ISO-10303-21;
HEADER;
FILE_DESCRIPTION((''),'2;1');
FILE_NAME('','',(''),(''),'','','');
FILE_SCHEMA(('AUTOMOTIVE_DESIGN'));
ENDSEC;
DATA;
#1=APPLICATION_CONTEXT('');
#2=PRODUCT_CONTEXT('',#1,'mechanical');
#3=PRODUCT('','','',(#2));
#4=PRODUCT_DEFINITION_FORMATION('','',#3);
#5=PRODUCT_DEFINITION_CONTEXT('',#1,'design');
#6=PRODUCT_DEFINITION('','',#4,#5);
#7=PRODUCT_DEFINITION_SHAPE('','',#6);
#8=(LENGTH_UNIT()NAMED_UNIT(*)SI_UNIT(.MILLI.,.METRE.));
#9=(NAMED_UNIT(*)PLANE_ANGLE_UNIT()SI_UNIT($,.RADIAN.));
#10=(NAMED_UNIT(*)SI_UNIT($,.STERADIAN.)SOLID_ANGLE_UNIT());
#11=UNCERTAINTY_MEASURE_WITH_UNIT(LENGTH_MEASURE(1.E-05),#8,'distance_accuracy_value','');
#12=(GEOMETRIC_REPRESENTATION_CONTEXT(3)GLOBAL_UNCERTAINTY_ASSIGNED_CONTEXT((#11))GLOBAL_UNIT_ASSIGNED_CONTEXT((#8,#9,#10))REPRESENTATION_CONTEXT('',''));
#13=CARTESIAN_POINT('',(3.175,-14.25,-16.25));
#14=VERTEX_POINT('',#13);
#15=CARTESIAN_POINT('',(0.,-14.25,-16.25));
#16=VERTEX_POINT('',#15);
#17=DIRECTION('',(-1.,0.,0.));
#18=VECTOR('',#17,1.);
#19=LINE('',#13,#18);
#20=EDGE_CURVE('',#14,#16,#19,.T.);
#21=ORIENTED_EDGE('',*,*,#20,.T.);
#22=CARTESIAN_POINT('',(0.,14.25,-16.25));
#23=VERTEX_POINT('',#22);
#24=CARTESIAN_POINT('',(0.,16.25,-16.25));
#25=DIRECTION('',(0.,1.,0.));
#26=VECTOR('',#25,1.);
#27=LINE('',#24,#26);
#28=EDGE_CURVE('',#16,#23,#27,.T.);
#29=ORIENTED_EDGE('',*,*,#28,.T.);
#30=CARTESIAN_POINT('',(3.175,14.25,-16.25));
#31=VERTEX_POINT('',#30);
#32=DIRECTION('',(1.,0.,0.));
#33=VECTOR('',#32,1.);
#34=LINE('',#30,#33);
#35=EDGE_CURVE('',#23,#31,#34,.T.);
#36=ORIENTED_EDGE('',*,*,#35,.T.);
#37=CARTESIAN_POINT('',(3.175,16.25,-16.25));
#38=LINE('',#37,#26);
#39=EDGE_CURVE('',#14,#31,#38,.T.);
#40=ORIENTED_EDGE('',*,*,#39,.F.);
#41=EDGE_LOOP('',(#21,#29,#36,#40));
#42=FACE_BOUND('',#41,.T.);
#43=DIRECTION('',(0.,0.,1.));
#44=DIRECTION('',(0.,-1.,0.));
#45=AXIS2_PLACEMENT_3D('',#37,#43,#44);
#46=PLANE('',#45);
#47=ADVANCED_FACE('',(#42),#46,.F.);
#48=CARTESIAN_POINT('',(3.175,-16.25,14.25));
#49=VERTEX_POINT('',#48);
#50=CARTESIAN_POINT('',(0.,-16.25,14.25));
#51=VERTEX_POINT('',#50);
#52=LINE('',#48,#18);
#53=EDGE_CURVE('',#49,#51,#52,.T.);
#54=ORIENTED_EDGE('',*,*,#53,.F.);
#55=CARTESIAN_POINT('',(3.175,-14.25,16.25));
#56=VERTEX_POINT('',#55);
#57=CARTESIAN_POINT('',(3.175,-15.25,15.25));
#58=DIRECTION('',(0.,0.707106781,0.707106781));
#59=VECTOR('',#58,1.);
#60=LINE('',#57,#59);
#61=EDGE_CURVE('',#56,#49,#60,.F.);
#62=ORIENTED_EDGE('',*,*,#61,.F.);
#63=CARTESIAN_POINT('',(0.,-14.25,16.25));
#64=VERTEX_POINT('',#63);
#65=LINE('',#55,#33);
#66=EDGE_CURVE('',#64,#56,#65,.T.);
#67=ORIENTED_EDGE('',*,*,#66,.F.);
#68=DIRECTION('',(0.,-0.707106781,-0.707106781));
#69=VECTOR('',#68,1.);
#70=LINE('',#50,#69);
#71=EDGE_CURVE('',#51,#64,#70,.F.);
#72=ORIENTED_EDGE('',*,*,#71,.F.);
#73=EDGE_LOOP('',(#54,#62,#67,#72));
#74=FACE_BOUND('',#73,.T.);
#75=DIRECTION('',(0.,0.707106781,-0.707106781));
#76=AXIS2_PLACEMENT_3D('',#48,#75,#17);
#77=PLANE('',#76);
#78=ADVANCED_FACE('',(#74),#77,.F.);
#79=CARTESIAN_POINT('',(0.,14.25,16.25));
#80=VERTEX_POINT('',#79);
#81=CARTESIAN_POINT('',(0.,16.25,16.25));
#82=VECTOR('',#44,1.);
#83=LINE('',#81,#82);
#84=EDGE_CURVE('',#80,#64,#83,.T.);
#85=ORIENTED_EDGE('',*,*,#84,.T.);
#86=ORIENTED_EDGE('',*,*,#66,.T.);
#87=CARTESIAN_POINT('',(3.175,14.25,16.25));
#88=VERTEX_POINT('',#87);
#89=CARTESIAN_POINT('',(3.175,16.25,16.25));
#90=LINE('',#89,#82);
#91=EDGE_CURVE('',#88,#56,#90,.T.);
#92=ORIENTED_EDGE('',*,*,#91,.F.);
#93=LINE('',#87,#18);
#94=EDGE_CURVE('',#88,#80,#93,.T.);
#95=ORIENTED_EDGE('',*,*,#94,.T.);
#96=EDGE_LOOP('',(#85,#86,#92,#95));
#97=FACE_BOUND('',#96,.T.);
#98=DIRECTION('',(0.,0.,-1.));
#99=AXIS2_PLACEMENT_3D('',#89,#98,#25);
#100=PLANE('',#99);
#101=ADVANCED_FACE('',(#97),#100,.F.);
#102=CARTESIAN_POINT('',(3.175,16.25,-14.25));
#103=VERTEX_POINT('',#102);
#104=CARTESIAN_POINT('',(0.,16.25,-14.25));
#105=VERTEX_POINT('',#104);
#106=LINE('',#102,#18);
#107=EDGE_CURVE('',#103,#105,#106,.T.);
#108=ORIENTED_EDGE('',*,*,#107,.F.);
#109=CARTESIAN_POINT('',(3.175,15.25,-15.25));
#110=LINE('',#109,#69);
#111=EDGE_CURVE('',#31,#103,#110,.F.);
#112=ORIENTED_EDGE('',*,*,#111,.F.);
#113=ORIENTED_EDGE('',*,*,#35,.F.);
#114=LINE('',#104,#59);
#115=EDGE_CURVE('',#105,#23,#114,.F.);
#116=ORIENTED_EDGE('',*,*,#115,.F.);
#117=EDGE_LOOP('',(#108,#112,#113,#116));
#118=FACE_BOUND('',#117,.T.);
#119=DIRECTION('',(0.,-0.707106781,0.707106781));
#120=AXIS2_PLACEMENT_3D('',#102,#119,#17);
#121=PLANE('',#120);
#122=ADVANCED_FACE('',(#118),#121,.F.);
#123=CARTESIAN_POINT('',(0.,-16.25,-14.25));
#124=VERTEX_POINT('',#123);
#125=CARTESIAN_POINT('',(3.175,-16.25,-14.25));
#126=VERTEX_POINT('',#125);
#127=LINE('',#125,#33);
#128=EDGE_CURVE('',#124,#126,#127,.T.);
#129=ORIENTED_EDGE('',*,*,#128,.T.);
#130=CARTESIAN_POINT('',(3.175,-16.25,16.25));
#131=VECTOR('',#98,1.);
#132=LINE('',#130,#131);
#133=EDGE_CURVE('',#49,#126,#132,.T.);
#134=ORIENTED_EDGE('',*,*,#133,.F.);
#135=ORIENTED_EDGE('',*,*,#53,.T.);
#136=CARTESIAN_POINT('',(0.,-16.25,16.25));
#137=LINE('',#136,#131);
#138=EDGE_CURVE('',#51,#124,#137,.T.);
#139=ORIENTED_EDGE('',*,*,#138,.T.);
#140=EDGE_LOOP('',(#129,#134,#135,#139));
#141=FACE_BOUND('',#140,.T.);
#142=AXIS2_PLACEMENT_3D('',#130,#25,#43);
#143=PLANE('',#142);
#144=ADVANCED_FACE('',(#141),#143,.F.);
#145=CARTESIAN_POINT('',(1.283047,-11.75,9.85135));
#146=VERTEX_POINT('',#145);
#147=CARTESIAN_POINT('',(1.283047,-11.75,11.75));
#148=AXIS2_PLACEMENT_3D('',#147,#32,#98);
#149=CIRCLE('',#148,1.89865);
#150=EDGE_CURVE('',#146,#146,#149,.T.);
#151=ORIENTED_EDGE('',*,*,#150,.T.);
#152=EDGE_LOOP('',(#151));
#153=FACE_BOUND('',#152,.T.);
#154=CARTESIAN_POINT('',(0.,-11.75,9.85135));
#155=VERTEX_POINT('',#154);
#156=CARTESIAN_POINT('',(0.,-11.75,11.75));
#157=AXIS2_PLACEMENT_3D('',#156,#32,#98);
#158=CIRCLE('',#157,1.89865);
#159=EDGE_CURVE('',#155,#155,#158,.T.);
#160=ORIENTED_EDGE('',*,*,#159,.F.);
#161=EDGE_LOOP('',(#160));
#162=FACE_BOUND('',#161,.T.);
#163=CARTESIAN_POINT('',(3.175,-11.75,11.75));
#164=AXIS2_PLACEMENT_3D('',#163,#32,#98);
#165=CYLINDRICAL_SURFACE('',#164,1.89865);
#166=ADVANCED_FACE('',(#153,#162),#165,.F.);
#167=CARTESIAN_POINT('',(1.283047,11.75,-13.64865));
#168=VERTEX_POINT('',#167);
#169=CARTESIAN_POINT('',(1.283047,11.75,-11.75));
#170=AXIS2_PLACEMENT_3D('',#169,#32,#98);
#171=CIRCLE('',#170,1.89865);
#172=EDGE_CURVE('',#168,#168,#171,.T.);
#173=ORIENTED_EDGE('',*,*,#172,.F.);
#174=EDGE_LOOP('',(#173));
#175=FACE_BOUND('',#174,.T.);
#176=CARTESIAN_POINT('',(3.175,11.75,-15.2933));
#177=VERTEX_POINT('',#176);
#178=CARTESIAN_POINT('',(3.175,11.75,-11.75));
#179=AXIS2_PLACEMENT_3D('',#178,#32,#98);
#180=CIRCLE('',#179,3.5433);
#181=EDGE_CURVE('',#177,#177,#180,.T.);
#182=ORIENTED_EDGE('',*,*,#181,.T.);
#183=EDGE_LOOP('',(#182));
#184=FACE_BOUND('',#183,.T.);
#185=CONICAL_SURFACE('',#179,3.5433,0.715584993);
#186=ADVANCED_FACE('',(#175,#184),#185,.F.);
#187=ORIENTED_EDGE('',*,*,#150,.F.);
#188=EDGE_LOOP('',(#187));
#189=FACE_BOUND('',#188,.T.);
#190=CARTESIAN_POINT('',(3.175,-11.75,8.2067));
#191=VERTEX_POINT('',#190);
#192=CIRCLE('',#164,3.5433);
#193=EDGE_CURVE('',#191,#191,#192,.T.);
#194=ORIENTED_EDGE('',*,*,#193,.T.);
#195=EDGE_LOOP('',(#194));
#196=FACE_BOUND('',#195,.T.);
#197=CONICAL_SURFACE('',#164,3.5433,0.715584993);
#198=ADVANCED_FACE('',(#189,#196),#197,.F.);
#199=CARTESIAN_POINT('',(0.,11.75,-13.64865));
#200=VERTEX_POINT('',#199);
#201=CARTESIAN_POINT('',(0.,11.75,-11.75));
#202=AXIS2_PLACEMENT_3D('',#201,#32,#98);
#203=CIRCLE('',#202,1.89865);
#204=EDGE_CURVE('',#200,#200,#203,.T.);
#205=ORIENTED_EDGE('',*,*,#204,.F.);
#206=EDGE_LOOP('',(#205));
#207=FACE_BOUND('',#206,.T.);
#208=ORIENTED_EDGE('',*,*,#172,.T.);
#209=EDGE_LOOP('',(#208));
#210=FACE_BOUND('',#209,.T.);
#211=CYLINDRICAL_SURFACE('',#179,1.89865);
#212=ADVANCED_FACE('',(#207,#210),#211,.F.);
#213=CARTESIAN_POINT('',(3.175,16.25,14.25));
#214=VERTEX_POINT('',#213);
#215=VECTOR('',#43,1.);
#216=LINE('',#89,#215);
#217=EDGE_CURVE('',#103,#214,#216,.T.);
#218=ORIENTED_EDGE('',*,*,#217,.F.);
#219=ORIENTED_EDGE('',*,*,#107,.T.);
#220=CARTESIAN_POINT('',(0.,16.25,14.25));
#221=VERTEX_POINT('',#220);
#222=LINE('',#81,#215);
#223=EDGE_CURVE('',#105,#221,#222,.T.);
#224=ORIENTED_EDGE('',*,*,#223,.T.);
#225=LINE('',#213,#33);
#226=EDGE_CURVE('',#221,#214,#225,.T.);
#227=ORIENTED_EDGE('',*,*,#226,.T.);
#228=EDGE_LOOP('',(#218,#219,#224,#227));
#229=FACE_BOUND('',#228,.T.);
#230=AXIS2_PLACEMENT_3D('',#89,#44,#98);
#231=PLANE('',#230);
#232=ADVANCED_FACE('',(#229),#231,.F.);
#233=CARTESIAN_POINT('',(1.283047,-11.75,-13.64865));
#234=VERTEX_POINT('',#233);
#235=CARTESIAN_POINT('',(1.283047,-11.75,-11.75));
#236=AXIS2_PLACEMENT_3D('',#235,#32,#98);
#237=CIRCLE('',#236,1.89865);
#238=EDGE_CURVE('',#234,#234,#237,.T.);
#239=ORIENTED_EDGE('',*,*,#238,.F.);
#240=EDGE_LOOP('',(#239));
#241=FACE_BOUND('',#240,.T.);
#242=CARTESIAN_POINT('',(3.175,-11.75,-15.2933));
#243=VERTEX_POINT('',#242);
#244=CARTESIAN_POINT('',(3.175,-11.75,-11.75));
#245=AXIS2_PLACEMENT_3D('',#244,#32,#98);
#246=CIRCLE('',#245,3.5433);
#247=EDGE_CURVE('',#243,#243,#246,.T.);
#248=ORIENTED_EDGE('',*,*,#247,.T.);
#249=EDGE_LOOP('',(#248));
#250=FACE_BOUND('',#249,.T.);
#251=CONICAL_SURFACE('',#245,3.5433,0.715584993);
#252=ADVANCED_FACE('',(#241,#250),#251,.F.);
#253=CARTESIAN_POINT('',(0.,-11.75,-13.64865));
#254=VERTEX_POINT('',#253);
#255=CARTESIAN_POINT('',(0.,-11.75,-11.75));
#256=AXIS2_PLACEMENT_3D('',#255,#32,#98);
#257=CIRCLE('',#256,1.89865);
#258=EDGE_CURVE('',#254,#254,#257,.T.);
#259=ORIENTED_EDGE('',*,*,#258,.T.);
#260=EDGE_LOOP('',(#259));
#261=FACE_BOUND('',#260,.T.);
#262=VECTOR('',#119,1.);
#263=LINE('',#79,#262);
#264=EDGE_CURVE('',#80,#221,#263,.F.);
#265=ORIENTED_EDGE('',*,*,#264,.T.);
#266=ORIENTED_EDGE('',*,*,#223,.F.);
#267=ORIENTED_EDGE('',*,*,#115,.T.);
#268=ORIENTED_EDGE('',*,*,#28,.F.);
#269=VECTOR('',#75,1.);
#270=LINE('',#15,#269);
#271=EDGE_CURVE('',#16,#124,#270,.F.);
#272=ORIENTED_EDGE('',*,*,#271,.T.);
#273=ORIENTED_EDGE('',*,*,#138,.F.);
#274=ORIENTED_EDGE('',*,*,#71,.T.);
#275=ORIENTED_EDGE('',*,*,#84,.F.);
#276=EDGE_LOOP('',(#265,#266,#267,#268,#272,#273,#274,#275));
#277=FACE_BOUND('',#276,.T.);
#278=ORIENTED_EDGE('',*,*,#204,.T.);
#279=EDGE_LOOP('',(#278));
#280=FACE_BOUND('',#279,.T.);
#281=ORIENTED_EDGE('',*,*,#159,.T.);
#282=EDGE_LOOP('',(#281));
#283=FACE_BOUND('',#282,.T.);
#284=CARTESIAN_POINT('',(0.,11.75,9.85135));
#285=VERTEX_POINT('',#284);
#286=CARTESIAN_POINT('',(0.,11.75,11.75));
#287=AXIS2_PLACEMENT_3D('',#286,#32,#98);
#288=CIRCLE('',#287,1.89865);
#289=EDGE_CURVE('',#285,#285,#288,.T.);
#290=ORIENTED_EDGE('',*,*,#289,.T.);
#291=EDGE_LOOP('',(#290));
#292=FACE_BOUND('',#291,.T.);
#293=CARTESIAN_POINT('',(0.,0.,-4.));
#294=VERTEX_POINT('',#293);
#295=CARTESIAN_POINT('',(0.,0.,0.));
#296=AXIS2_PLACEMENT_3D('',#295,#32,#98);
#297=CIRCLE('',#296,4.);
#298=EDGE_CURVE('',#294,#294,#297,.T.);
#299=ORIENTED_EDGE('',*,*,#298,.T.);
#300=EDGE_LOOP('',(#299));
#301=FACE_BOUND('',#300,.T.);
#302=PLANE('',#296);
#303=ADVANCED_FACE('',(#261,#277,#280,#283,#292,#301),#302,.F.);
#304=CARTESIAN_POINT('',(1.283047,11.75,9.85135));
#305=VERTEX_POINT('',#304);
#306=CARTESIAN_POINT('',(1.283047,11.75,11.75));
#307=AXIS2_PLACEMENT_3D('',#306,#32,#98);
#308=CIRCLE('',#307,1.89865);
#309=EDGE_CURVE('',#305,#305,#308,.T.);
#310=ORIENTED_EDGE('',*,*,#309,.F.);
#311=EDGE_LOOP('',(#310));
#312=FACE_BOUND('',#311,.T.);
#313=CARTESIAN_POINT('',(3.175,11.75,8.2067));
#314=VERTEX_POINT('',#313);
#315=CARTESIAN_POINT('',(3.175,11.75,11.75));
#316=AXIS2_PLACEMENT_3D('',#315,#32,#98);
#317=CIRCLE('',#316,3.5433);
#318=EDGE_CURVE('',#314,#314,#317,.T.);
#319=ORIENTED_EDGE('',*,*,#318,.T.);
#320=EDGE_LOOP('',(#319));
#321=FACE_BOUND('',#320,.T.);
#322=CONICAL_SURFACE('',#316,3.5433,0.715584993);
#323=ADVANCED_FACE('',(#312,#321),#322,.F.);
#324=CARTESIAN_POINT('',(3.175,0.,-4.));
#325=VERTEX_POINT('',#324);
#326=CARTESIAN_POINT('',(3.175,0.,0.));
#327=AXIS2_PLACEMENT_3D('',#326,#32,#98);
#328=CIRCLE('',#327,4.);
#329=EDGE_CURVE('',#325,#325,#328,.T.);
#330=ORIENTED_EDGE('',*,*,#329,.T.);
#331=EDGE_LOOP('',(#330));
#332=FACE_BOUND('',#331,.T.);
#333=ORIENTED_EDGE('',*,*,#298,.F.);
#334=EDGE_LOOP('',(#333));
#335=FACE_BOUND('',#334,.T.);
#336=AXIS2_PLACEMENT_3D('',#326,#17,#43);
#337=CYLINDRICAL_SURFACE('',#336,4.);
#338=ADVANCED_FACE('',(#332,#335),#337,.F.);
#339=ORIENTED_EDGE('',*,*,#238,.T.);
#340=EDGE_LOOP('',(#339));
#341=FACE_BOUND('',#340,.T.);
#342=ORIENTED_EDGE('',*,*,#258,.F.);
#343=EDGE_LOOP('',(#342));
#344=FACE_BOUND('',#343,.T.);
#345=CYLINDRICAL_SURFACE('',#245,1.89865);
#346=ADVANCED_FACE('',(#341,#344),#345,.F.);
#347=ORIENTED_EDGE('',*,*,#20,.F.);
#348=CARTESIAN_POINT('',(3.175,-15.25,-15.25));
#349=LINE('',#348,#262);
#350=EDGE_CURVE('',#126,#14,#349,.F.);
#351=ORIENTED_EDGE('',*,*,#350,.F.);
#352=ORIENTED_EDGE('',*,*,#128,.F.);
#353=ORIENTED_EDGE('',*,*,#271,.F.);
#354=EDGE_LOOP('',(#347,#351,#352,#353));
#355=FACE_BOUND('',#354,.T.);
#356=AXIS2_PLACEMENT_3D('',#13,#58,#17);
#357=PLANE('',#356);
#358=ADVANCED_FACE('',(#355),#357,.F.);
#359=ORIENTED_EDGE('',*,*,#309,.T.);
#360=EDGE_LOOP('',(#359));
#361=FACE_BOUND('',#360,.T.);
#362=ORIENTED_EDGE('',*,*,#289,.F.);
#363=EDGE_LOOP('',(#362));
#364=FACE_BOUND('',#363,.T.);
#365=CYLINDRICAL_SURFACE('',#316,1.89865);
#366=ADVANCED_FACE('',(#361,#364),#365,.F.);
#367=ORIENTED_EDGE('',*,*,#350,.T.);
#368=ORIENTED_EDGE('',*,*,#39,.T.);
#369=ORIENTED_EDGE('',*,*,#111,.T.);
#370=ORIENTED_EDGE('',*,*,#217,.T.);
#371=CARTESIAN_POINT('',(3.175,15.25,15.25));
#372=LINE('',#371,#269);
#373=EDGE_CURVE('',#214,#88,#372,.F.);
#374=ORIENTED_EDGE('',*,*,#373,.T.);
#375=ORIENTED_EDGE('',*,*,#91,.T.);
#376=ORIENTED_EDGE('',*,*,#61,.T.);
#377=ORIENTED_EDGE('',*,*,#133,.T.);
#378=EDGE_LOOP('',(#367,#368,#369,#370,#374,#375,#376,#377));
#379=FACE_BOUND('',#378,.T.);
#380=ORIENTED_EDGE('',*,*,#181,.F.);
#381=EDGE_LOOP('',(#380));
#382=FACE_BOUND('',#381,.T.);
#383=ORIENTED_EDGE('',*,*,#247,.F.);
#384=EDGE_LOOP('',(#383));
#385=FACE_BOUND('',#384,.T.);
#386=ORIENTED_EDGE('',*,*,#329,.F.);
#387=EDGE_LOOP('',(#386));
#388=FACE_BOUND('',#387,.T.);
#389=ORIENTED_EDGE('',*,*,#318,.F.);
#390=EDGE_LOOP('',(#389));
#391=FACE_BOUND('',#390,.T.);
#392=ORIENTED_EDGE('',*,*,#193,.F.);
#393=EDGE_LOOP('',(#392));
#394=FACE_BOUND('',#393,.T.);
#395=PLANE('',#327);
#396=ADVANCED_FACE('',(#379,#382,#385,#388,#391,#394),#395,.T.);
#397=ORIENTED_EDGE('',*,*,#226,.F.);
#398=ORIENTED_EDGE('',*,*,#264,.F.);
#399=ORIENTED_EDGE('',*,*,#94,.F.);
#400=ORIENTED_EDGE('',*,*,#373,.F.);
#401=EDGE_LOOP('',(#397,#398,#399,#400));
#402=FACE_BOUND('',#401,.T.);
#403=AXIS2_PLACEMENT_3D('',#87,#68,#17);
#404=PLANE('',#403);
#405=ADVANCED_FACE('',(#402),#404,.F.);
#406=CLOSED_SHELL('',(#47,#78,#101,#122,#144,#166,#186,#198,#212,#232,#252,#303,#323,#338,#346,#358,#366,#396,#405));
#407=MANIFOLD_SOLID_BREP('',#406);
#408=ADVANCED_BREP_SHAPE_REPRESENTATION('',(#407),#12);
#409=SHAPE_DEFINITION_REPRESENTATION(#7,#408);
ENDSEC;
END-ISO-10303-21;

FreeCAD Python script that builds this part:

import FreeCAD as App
import Part
import Sketcher
from FreeCAD import Vector
Q = App.Units.Quantity


def edges_at(feature, points):
    """Names of the edges that pass closest to the given points."""
    edges = feature.Shape.Edges
    near = lambda p: min(range(len(edges)), key=lambda i: edges[i].distToShape(Part.Vertex(*p))[0])
    return sorted({f"Edge{near(p) + 1}" for p in points})

doc = App.newDocument("Part")
params = doc.addObject("Spreadsheet::Sheet", "Params")
for row, (alias, value) in enumerate([
    ("sketch1_diameter", "8 mm"),
    ("sketch1_width", "32.5 mm"),
    ("pad1_length", "3.175 mm"),
    ("chamfer_size", "2 mm"),
    ("groove_angle", "360 deg"),
    ("linearpattern_pitch", "23.5 mm"),
    ("linearpattern2_pitch", "33.234019 mm"),
    ("linearpattern3_pitch", "23.5 mm"),
], start=1):
    params.set(f"A{row}", alias)
    params.set(f"B{row}", "=" + value)
    params.setAlias(f"B{row}", alias)

body = doc.addObject("PartDesign::Body", "Body")

# Sketch on YZ plane
sketch1 = body.newObject("Sketcher::SketchObject", "Sketch")
sketch1.AttachmentSupport = (doc.getObject("YZ_Plane"), [""])
sketch1.MapMode = "FlatFace"
sketch1.addGeometry([
    Part.LineSegment(Vector(16.2, 16.2, 0), Vector(-16.2, 16.2, 0)),  # 0
    Part.LineSegment(Vector(-16.2, 16.2, 0), Vector(-16.2, -16.2, 0)),  # 1
    Part.LineSegment(Vector(-16.2, -16.2, 0), Vector(16.2, -16.2, 0)),  # 2
    Part.LineSegment(Vector(16.2, -16.2, 0), Vector(16.2, 16.2, 0)),  # 3
    Part.Circle(Vector(0, 0, 0), Vector(0, 0, 1), 4),  # 4
], False)
sketch1.addConstraint([
    Sketcher.Constraint("Coincident", 0, 2, 1, 1),
    Sketcher.Constraint("Coincident", 1, 2, 2, 1),
    Sketcher.Constraint("Coincident", 2, 2, 3, 1),
    Sketcher.Constraint("Coincident", 3, 2, 0, 1),
    Sketcher.Constraint("Horizontal", 0),
    Sketcher.Constraint("Vertical", 1),
    Sketcher.Constraint("Horizontal", 2),
    Sketcher.Constraint("Vertical", 3),
    Sketcher.Constraint("Coincident", 4, 3, -1, 1),
    Sketcher.Constraint("Symmetric", 0, 2, 2, 2, -1, 1),
    Sketcher.Constraint("Equal", 2, 1),
    Sketcher.Constraint("Diameter", 4, 8.0),
    Sketcher.Constraint("DistanceX", 0, 2, 0, 1, 32.5),
])
sketch1.setExpression("Constraints[11]", "Params.sketch1_diameter")
sketch1.setExpression("Constraints[12]", "Params.sketch1_width")
pad1 = body.newObject("PartDesign::Pad", "Pad")
pad1.Profile = sketch1
pad1.setExpression("Length", "Params.pad1_length")
doc.recompute()

chamfer = body.newObject("PartDesign::Chamfer", "Chamfer")
chamfer.Base = (pad1, edges_at(pad1, [
    (1.587, 16.25, 16.25),
    (1.587, 16.25, -16.25),
    (1.587, -16.25, -16.25),
    (1.587, -16.25, 16.25),
]))
chamfer.setExpression("Size", "Params.chamfer_size")

# Sketch on XZ plane
sketch2 = body.newObject("Sketcher::SketchObject", "Sketch001")
sketch2.AttachmentSupport = (doc.getObject("XZ_Plane"), [""])
sketch2.MapMode = "FlatFace"
sketch2.AttachmentOffset = App.Placement(Vector(0, 0, -11.75), App.Rotation())
sketch2.addGeometry([
    Part.LineSegment(Vector(0, 11.8, 0), Vector(3.2, 11.8, 0)),  # 0
    Part.LineSegment(Vector(3.2, 11.8, 0), Vector(3.2, 8.2, 0)),  # 1
    Part.LineSegment(Vector(3.2, 8.2, 0), Vector(1.3, 9.9, 0)),  # 2
    Part.LineSegment(Vector(1.3, 9.9, 0), Vector(0, 9.9, 0)),  # 3
    Part.LineSegment(Vector(0, 9.9, 0), Vector(0, 11.8, 0)),  # 4
], False)
sketch2.addGeometry(Part.LineSegment(Vector(3.2, 11.8, 0), Vector(0, 11.8, 0)), True)  # axis
sketch2.addConstraint([
    Sketcher.Constraint("Coincident", 0, 2, 1, 1),
    Sketcher.Constraint("Coincident", 1, 2, 2, 1),
    Sketcher.Constraint("Coincident", 2, 2, 3, 1),
    Sketcher.Constraint("Coincident", 3, 2, 4, 1),
    Sketcher.Constraint("Coincident", 4, 2, 0, 1),
    Sketcher.Constraint("Horizontal", 0),
    Sketcher.Constraint("Vertical", 1),
    Sketcher.Constraint("Horizontal", 3),
    Sketcher.Constraint("Vertical", 4),
    Sketcher.Constraint("Horizontal", 5),
    Sketcher.Constraint("Coincident", 5, 1, 0, 2),
    Sketcher.Constraint("PointOnObject", 3, 2, -2),
    Sketcher.Constraint("PointOnObject", 5, 2, -2),
    Sketcher.Constraint("Angle", 2, Q("139 deg")),
    Sketcher.Constraint("DistanceX", 0, 1, 0, 2, 3.175),
    Sketcher.Constraint("DistanceY", -1, 1, 0, 2, 11.75),
    Sketcher.Constraint("DistanceY", 1, 2, 1, 1, 3.5433),
    Sketcher.Constraint("DistanceY", 4, 1, 4, 2, 1.89865),
])
groove = body.newObject("PartDesign::Groove", "Groove")
groove.Profile = sketch2
groove.ReferenceAxis = (sketch2, ["Axis0"])
groove.setExpression("Angle", "Params.groove_angle")
doc.recompute()

linearpattern = body.newObject("PartDesign::LinearPattern", "LinearPattern")
linearpattern.Originals = [groove]
linearpattern.Direction = (doc.getObject("Z_Axis"), [""])
linearpattern.Mode = "offset"
linearpattern.setExpression("Offset", "Params.linearpattern_pitch")
linearpattern.Occurrences = 2
linearpattern.Reversed = True
body.Tip = linearpattern
doc.recompute()

datumline = body.newObject("PartDesign::Line", "DatumLine")
datumline.Placement = App.Placement(Vector(0, 0, 0), App.Rotation(Vector(0, 0, 1), Vector(0, -0.707106781, -0.707106781)))
linearpattern2 = body.newObject("PartDesign::LinearPattern", "LinearPattern001")
linearpattern2.Originals = [groove]
linearpattern2.Direction = (datumline, [""])
linearpattern2.Mode = "offset"
linearpattern2.setExpression("Offset", "Params.linearpattern2_pitch")
linearpattern2.Occurrences = 2
body.Tip = linearpattern2
doc.recompute()

linearpattern3 = body.newObject("PartDesign::LinearPattern", "LinearPattern002")
linearpattern3.Originals = [groove]
linearpattern3.Direction = (doc.getObject("Y_Axis"), [""])
linearpattern3.Mode = "offset"
linearpattern3.setExpression("Offset", "Params.linearpattern3_pitch")
linearpattern3.Occurrences = 2
linearpattern3.Reversed = True
body.Tip = linearpattern3

doc.recompute()
